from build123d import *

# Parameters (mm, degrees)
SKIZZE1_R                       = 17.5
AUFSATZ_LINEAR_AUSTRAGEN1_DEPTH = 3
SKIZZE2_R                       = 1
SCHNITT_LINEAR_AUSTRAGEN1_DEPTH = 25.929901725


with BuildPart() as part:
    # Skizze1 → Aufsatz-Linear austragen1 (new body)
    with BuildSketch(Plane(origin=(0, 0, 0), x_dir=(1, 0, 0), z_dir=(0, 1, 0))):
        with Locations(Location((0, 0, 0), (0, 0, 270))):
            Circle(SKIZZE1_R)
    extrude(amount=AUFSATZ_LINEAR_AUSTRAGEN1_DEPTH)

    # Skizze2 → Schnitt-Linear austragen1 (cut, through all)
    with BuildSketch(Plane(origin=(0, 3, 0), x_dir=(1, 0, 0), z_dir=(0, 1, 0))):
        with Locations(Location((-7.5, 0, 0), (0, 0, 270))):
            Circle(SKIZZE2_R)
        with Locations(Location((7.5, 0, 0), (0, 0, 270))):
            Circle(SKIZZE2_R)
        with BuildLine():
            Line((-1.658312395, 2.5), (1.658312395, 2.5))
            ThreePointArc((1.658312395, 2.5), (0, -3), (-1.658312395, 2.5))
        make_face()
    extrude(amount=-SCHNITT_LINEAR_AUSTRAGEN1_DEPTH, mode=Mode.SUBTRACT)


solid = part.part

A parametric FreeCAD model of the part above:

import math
import FreeCAD as App
import Part
import Sketcher
Q = App.Units.Quantity

doc = App.newDocument("Part")
body = doc.addObject("PartDesign::Body", "Body")

# Sketch on XZ plane
sketch1 = doc.addObject("Sketcher::SketchObject", "Sketch")
body.addObject(sketch1)
sketch1.AttachmentSupport = (doc.XZ_Plane, [""])
sketch1.MapMode = "FlatFace"
sketch1.addGeometry(Part.Circle(App.Vector(0, 0, 0), App.Vector(0, 0, 1), 17.5), False)
sketch1.addConstraint([
    Sketcher.Constraint("Coincident", 0, 3, -1, 1),
    Sketcher.Constraint("Diameter", 0, Q("35 mm")),
])
pad1 = doc.addObject("PartDesign::Pad", "Pad")
body.addObject(pad1)
pad1.Profile = sketch1
pad1.Length = 3
pad1.Reversed = True

# Sketch on XZ plane
sketch2 = doc.addObject("Sketcher::SketchObject", "Sketch001")
body.addObject(sketch2)
sketch2.AttachmentSupport = (doc.XZ_Plane, [""])
sketch2.MapMode = "FlatFace"
sketch2.AttachmentOffset = App.Placement(App.Vector(0, 0, -3), App.Rotation())
sketch2.addGeometry([
    Part.Circle(App.Vector(-7.5, 0, 0), App.Vector(0, 0, 1), 1),
    Part.Circle(App.Vector(7.5, 0, 0), App.Vector(0, 0, 1), 1),
    Part.LineSegment(App.Vector(1.658312, -2.5, 0), App.Vector(-1.658312, -2.5, 0)),
    Part.ArcOfCircle(Part.Circle(App.Vector(0, 0, 0), App.Vector(0, 0, 1), 3), math.radians(-56.44269), math.radians(236.44269)),
], False)
sketch2.addConstraint([
    Sketcher.Constraint("Coincident", 2, 1, 3, 1),
    Sketcher.Constraint("Coincident", 3, 2, 2, 2),
    Sketcher.Constraint("Horizontal", 2),
    Sketcher.Constraint("Coincident", 3, 3, -1, 1),
    Sketcher.Constraint("Equal", 0, 1),
    Sketcher.Constraint("Symmetric", 0, 3, 1, 3, -1, 1),
    Sketcher.Constraint("PointOnObject", 0, 3, -1),
    Sketcher.Constraint("Diameter", 0, Q("2 mm")),
    Sketcher.Constraint("Radius", 3, Q("3 mm")),
    Sketcher.Constraint("DistanceX", 0, 3, 1, 3, Q("15 mm")),
    Sketcher.Constraint("DistanceY", 2, 1, -1, 1, Q("2.5 mm")),
])
pocket1 = doc.addObject("PartDesign::Pocket", "Pocket")
body.addObject(pocket1)
pocket1.Profile = sketch2
pocket1.Type = "ThroughAll"
pocket1.Reversed = True

doc.recompute()
